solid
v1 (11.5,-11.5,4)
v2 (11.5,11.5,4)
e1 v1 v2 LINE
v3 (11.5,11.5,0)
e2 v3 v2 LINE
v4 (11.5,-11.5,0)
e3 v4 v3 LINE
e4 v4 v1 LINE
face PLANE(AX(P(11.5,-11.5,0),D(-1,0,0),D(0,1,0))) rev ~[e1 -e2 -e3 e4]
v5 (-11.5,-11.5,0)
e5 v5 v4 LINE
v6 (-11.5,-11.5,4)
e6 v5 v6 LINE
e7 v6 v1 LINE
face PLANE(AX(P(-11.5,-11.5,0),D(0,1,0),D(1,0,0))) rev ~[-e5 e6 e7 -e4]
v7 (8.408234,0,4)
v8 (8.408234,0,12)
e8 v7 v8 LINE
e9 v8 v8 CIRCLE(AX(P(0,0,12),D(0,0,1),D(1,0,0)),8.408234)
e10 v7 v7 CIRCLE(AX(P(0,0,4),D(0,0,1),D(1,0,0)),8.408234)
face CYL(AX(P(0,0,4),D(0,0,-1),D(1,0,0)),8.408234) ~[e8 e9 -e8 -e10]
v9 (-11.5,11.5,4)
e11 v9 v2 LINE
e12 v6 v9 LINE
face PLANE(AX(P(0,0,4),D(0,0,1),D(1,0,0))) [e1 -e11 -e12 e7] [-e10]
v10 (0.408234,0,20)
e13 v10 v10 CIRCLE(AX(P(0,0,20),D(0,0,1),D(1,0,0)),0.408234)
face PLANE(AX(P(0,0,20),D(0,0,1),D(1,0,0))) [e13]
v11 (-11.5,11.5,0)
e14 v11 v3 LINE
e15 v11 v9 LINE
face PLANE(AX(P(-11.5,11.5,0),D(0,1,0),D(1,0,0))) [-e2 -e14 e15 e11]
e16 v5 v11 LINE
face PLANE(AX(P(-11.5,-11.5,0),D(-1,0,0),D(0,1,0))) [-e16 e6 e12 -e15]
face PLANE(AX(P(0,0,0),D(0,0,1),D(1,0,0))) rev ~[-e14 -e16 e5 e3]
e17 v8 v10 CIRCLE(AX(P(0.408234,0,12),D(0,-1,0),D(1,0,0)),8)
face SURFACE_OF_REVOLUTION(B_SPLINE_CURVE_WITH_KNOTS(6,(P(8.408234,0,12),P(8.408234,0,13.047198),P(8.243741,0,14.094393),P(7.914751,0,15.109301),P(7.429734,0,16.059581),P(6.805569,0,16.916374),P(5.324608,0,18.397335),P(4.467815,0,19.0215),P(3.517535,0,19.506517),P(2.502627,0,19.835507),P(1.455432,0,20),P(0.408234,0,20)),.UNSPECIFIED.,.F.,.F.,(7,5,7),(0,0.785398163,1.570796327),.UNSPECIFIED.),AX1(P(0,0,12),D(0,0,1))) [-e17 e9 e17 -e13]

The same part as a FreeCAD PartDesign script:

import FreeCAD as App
import Part
import Sketcher
Q = App.Units.Quantity


def edges_at(feature, points):
    """Names of the edges that pass closest to the given points."""
    edges = feature.Shape.Edges
    near = lambda p: min(range(len(edges)), key=lambda i: edges[i].distToShape(Part.Vertex(*p))[0])
    return sorted({f"Edge{near(p) + 1}" for p in points})

doc = App.newDocument("Part")
params = doc.addObject("Spreadsheet::Sheet", "Params")
for row, (alias, value) in enumerate([
    ("sketch1_width", "23 mm"),
    ("pad1_length", "4 mm"),
    ("pad2_length", "16 mm"),
    ("fillet_radius", "8 mm"),
], start=1):
    params.set(f"A{row}", alias)
    params.set(f"B{row}", "=" + value)
    params.setAlias(f"B{row}", alias)

body = doc.addObject("PartDesign::Body", "Body")

# Sketch on XY plane
sketch1 = body.newObject("Sketcher::SketchObject", "Sketch")
sketch1.AttachmentSupport = (doc.getObject("XY_Plane"), [""])
sketch1.MapMode = "FlatFace"
sketch1.addGeometry(Part.LineSegment(App.Vector(-11.5, 11.5, 0), App.Vector(-11.5, -11.5, 0)), False)
sketch1.addGeometry(Part.LineSegment(App.Vector(-11.5, -11.5, 0), App.Vector(11.5, -11.5, 0)), False)
sketch1.addGeometry(Part.LineSegment(App.Vector(11.5, -11.5, 0), App.Vector(11.5, 11.5, 0)), False)
sketch1.addGeometry(Part.LineSegment(App.Vector(11.5, 11.5, 0), App.Vector(-11.5, 11.5, 0)), False)
sketch1.addConstraint(Sketcher.Constraint("Coincident", 0, 2, 1, 1))
sketch1.addConstraint(Sketcher.Constraint("Coincident", 1, 2, 2, 1))
sketch1.addConstraint(Sketcher.Constraint("Coincident", 2, 2, 3, 1))
sketch1.addConstraint(Sketcher.Constraint("Coincident", 3, 2, 0, 1))
sketch1.addConstraint(Sketcher.Constraint("Vertical", 0))
sketch1.addConstraint(Sketcher.Constraint("Horizontal", 1))
sketch1.addConstraint(Sketcher.Constraint("Vertical", 2))
sketch1.addConstraint(Sketcher.Constraint("Horizontal", 3))
sketch1.addConstraint(Sketcher.Constraint("Symmetric", 0, 2, 2, 2, -1, 1))
sketch1.addConstraint(Sketcher.Constraint("Equal", 3, 0))
sketch1.addConstraint(Sketcher.Constraint("DistanceX", 1, 1, 1, 2, Q("23 mm")))
sketch1.setExpression("Constraints[10]", "Params.sketch1_width")
pad1 = body.newObject("PartDesign::Pad", "Pad")
pad1.Profile = sketch1
pad1.setExpression("Length", "Params.pad1_length")

# Sketch on XY plane
sketch2 = body.newObject("Sketcher::SketchObject", "Sketch001")
sketch2.AttachmentSupport = (doc.getObject("XY_Plane"), [""])
sketch2.MapMode = "FlatFace"
sketch2.AttachmentOffset = App.Placement(App.Vector(0, 0, 4), App.Rotation())
sketch2.addGeometry(Part.Circle(App.Vector(0, 0, 0), App.Vector(0, 0, 1), 8.408234), False)
sketch2.addConstraint(Sketcher.Constraint("Coincident", 0, 3, -1, 1))
sketch2.addConstraint(Sketcher.Constraint("Diameter", 0, Q("16.816468 mm")))
pad2 = body.newObject("PartDesign::Pad", "Pad001")
pad2.Profile = sketch2
pad2.setExpression("Length", "Params.pad2_length")
doc.recompute()

fillet = body.newObject("PartDesign::Fillet", "Fillet")
fillet.Base = (pad2, edges_at(pad2, [(-8.408, 0, 20)]))
fillet.setExpression("Radius", "Params.fillet_radius")

doc.recompute()
